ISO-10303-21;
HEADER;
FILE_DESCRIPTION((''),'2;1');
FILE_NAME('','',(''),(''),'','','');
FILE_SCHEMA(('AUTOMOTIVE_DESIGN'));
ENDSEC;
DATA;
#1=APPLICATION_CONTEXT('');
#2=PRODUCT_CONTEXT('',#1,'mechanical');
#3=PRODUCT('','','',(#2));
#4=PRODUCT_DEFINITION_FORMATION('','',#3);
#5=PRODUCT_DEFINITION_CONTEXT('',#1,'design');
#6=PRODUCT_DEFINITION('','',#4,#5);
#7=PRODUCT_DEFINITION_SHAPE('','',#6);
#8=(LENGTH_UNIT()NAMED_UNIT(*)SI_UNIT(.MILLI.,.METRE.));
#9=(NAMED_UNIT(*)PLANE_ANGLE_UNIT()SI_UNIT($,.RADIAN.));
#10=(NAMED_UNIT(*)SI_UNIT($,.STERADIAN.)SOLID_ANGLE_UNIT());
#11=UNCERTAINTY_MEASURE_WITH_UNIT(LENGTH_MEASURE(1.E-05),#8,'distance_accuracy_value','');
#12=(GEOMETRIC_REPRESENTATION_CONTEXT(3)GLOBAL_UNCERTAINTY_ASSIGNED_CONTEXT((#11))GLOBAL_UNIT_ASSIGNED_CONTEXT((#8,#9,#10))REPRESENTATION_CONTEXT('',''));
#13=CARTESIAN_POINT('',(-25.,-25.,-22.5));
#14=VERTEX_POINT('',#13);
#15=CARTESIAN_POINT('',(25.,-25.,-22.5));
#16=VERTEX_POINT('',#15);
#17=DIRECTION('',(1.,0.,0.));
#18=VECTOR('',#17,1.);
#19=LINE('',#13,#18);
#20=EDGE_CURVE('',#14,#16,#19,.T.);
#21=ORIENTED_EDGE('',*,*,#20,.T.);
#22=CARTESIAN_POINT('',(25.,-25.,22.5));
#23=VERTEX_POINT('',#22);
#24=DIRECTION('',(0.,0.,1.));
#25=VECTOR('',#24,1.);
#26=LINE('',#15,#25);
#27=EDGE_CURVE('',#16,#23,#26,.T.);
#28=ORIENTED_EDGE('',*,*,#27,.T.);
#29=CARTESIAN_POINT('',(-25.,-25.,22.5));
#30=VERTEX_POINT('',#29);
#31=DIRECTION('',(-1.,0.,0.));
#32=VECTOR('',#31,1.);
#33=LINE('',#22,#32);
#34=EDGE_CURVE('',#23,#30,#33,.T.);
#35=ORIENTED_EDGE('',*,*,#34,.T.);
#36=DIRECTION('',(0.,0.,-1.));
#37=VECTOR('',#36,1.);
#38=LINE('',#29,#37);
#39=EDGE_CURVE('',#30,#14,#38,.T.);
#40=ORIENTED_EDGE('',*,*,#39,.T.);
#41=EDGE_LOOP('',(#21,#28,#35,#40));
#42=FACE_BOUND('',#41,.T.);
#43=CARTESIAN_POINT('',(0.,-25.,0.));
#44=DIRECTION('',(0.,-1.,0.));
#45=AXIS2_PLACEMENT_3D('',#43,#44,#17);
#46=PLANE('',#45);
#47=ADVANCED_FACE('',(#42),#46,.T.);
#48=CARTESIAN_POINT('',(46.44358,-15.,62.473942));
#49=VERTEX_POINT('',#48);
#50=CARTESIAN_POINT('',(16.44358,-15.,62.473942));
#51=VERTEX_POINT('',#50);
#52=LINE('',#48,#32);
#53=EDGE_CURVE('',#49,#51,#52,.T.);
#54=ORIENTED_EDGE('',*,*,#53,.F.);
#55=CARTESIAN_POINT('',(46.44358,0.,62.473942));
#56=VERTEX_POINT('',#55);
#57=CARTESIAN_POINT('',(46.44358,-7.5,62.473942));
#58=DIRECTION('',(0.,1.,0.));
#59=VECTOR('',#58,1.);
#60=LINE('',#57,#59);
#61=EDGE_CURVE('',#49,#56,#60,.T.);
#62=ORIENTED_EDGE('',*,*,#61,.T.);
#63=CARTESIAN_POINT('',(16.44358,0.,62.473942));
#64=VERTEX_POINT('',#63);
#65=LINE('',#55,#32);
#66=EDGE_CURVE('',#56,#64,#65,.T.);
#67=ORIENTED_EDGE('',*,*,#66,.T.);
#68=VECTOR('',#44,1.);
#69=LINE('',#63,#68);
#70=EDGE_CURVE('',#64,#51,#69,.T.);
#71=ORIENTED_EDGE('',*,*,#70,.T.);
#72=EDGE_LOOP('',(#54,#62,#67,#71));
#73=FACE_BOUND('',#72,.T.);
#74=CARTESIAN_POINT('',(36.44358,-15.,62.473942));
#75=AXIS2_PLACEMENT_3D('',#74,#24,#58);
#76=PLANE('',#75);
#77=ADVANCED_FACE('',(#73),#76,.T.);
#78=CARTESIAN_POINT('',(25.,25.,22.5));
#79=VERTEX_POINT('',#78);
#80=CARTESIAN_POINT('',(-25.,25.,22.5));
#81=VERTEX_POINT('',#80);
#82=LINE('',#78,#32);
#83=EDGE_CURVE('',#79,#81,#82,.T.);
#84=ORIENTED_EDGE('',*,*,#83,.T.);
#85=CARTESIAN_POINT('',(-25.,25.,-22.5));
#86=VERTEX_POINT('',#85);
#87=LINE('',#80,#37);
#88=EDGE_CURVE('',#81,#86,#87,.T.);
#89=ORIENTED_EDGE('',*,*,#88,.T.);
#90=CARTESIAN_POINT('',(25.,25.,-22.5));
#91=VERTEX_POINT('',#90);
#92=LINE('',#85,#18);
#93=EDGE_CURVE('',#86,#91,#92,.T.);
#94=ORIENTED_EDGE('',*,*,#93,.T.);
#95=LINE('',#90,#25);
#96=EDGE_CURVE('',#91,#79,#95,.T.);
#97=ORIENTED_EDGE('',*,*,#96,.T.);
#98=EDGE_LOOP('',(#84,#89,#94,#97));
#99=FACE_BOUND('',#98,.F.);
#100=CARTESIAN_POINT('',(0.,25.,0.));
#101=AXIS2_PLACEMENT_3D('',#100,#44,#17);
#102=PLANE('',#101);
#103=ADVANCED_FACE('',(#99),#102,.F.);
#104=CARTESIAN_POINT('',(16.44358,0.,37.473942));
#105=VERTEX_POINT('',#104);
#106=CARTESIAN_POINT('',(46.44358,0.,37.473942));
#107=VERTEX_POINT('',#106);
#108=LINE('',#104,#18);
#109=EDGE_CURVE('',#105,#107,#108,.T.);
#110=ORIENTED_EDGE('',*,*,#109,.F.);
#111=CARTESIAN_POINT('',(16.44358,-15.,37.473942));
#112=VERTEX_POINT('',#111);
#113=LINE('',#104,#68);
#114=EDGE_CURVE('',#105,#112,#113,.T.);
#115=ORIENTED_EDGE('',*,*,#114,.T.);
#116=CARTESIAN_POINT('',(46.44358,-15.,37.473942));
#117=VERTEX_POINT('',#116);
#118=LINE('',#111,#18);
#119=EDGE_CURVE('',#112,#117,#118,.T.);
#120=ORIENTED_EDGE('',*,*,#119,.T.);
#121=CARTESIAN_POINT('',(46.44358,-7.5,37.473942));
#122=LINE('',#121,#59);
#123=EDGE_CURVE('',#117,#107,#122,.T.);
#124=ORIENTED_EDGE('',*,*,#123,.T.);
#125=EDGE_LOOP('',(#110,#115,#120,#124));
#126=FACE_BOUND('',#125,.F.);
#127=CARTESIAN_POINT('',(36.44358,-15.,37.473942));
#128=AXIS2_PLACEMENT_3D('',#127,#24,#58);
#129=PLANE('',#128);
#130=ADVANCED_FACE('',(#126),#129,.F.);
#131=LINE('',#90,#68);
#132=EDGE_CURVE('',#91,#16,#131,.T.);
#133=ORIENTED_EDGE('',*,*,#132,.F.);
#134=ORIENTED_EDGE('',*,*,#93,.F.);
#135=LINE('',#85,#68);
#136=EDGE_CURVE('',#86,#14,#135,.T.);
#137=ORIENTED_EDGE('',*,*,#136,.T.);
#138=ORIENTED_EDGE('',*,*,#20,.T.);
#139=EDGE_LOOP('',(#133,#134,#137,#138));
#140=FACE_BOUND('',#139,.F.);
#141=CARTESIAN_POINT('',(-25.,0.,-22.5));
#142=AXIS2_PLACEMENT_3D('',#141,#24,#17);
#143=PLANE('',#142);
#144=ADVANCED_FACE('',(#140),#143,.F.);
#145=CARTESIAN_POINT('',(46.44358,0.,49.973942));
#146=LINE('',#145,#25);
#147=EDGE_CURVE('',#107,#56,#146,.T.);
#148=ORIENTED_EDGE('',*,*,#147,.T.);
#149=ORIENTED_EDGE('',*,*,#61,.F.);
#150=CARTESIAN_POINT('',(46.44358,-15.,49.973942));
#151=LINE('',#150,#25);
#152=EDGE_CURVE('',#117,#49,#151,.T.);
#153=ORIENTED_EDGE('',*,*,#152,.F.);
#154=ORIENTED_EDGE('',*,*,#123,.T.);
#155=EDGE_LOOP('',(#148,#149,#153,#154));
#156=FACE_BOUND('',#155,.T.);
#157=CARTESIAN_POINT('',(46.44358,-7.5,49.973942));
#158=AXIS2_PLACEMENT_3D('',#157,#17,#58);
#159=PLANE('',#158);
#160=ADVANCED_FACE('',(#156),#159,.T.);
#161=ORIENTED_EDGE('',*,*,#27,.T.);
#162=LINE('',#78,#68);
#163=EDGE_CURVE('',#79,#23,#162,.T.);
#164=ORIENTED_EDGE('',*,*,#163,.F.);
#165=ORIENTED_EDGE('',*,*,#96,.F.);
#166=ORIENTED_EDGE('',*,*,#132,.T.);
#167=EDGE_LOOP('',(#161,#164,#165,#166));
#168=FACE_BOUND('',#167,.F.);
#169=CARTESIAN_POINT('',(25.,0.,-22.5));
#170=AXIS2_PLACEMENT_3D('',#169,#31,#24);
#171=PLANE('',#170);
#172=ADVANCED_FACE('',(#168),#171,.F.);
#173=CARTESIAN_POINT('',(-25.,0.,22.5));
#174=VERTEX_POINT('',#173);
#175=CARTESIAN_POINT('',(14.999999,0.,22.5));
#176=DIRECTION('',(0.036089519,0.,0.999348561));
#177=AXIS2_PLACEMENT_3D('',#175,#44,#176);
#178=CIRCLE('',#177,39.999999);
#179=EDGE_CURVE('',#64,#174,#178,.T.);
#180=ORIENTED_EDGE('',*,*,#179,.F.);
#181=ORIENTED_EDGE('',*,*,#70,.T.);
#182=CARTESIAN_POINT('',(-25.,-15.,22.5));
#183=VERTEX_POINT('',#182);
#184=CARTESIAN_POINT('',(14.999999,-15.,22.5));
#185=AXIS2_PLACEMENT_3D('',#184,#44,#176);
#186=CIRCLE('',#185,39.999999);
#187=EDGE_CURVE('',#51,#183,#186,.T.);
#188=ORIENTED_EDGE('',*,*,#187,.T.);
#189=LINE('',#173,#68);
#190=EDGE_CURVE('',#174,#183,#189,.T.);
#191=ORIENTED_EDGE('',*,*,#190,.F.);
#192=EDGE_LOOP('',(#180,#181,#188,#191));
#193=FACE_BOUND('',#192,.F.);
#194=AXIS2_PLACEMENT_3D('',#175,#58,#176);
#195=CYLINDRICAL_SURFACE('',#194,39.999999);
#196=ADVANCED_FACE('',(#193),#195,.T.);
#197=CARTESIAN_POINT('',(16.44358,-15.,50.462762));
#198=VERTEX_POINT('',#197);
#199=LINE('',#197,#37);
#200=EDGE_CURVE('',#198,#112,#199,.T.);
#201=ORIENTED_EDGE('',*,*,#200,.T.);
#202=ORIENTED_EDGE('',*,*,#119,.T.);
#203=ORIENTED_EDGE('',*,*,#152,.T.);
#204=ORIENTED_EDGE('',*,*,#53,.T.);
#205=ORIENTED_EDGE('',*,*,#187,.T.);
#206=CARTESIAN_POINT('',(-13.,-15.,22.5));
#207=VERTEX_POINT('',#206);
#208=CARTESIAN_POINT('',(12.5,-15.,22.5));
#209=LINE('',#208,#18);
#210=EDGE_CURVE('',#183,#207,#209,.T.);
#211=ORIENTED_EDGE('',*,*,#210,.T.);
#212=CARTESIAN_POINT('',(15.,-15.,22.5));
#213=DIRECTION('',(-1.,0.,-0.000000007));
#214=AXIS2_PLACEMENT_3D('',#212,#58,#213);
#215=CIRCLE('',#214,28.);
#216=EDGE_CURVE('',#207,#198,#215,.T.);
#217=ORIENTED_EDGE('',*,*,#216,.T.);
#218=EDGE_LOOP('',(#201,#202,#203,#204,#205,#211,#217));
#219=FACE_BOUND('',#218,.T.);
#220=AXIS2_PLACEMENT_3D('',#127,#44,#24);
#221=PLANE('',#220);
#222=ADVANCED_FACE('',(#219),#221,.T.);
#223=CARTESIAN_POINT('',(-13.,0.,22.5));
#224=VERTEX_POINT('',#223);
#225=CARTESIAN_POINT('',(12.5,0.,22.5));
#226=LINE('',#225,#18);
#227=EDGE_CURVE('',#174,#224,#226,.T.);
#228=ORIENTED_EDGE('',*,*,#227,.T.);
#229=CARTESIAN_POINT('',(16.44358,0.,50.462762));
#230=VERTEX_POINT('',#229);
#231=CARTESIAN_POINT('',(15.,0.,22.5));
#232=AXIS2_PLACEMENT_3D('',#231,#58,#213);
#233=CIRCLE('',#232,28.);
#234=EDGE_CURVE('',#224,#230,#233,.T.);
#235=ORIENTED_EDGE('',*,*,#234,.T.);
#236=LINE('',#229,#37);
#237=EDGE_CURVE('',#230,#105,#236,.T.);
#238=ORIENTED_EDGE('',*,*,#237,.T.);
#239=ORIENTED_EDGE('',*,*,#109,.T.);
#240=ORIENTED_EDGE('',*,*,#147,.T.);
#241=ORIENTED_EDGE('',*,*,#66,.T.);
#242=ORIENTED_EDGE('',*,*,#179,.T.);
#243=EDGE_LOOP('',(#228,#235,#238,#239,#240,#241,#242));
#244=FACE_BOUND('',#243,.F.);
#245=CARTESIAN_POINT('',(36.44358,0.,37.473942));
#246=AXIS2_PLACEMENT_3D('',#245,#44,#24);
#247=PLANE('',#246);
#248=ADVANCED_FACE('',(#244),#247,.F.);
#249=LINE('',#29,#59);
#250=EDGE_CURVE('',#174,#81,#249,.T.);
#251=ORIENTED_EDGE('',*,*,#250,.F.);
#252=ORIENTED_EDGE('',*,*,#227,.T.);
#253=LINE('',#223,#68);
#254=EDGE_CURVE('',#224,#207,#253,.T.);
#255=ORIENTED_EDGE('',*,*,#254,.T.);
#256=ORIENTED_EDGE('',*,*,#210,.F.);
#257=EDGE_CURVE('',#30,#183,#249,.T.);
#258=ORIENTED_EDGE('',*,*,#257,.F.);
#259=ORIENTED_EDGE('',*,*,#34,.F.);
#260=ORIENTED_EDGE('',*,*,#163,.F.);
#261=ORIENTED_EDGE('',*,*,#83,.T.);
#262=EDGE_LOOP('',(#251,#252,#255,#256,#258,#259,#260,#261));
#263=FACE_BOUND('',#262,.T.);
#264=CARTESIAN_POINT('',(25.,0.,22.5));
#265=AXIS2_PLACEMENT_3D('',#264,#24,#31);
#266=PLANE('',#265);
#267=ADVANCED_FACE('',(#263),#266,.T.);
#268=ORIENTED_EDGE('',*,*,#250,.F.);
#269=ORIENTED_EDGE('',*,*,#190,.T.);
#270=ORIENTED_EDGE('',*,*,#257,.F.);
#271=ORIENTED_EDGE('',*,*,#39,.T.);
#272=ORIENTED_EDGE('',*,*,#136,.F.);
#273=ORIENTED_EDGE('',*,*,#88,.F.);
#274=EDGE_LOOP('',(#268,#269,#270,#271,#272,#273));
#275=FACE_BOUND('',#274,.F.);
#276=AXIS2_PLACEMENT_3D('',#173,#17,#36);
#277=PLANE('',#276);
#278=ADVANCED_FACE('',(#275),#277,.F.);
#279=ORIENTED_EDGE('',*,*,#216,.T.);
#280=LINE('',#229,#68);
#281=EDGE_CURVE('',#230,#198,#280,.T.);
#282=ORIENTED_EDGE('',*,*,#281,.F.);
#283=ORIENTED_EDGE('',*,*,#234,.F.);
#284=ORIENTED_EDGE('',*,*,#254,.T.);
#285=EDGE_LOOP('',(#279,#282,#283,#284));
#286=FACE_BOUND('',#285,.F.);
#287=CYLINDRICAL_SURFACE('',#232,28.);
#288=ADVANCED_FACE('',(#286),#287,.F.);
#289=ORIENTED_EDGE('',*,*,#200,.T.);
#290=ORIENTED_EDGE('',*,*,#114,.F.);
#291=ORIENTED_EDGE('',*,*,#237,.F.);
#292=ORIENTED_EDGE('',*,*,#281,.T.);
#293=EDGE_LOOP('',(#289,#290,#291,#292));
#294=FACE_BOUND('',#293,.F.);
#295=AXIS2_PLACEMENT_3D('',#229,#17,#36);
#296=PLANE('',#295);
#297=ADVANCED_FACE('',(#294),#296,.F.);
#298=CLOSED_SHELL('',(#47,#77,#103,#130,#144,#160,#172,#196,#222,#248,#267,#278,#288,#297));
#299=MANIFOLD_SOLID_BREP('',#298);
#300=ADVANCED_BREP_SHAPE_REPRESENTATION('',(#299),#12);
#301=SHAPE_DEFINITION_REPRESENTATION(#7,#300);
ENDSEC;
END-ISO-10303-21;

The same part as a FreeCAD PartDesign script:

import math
import FreeCAD as App
import Part
import Sketcher
from FreeCAD import Vector
Q = App.Units.Quantity


def add_polygon(sketch, points):
    """Adds a closed chain of lines whose ends are joined by coincident constraints."""
    first, n = sketch.GeometryCount, len(points)
    for a, b in zip(points, points[1:] + points[:1]):
        sketch.addGeometry(Part.LineSegment(App.Vector(*a, 0), App.Vector(*b, 0)), False)
    for i in range(n):
        sketch.addConstraint(Sketcher.Constraint("Coincident", first + i, 2, first + (i + 1) % n, 1))

doc = App.newDocument("Part")
params = doc.addObject("Spreadsheet::Sheet", "Params")
for row, (alias, value) in enumerate([
    ("sketch1_width", "50 mm"),
    ("sketch1_height", "45 mm"),
    ("pad1_length", "50 mm"),
    ("sketch2_radius", "28 mm"),
    ("sketch2_radius2", "39.999999 mm"),
    ("sketch2_width", "50 mm"),
    ("sketch2_width2", "20 mm"),
    ("sketch2_height", "45 mm"),
    ("pad2_length", "15 mm"),
    ("sketch3_width", "15 mm"),
    ("sketch3_height", "25 mm"),
    ("pad3_length", "10 mm"),
], start=1):
    params.set(f"A{row}", alias)
    params.set(f"B{row}", "=" + value)
    params.setAlias(f"B{row}", alias)

body = doc.addObject("PartDesign::Body", "Body")

sketch1 = body.newObject("Sketcher::SketchObject", "Sketch")
sketch1.AttachmentSupport = (doc.getObject("XZ_Plane"), [""])
sketch1.MapMode = "FlatFace"
add_polygon(sketch1, [(-25, 22.5), (-25, -22.5), (25, -22.5), (25, 22.5)])
sketch1.addConstraint([
    Sketcher.Constraint("Vertical", 0),
    Sketcher.Constraint("Horizontal", 1),
    Sketcher.Constraint("Vertical", 2),
    Sketcher.Constraint("Horizontal", 3),
    Sketcher.Constraint("Symmetric", 0, 2, 2, 2, -1, 1),
    Sketcher.Constraint("DistanceX", 1, 1, 1, 2, Q("50 mm")),
    Sketcher.Constraint("DistanceY", 0, 2, 0, 1, Q("45 mm")),
])
sketch1.setExpression("Constraints[9]", "Params.sketch1_width")
sketch1.setExpression("Constraints[10]", "Params.sketch1_height")
pad1 = body.newObject("PartDesign::Pad", "Pad")
pad1.Profile = sketch1
pad1.setExpression("Length", "Params.pad1_length")
pad1.Midplane = True

sketch2 = body.newObject("Sketcher::SketchObject", "Sketch001")
sketch2.AttachmentSupport = (doc.getObject("XZ_Plane"), [""])
sketch2.MapMode = "FlatFace"
sketch2.addGeometry([
    Part.LineSegment(Vector(-25, 22.5, 0), Vector(-25, -22.5, 0)),
    Part.LineSegment(Vector(-25, -22.5, 0), Vector(25, -22.5, 0)),
    Part.LineSegment(Vector(25, -22.5, 0), Vector(25, 22.5, 0)),
    Part.LineSegment(Vector(25, 22.5, 0), Vector(-13, 22.5, 0)),
    Part.ArcOfCircle(Part.Circle(Vector(15, 22.5, 0), Vector(0, 0, 1), 28), math.radians(87.044723), math.radians(180)),
    Part.LineSegment(Vector(16.44358, 50.462762, 0), Vector(16.44358, 37.473942, 0)),
    Part.LineSegment(Vector(16.44358, 37.473942, 0), Vector(36.44358, 37.473942, 0)),
    Part.LineSegment(Vector(36.44358, 37.473942, 0), Vector(36.44358, 62.473942, 0)),
    Part.LineSegment(Vector(36.44358, 62.473942, 0), Vector(16.44358, 62.473942, 0)),
    Part.ArcOfCircle(Part.Circle(Vector(14.999999, 22.5, 0), Vector(0, 0, 1), 39.999999), math.radians(87.931774), math.radians(180)),
], False)
sketch2.addConstraint([
    Sketcher.Constraint("Coincident", 0, 2, 1, 1),
    Sketcher.Constraint("Coincident", 1, 2, 2, 1),
    Sketcher.Constraint("Coincident", 2, 2, 3, 1),
    Sketcher.Constraint("Coincident", 3, 2, 4, 2),
    Sketcher.Constraint("Coincident", 4, 1, 5, 1),
    Sketcher.Constraint("Coincident", 5, 2, 6, 1),
    Sketcher.Constraint("Coincident", 6, 2, 7, 1),
    Sketcher.Constraint("Coincident", 7, 2, 8, 1),
    Sketcher.Constraint("Coincident", 8, 2, 9, 1),
    Sketcher.Constraint("Tangent", 9, 2, 0, 1),
    Sketcher.Constraint("Vertical", 0),
    Sketcher.Constraint("Horizontal", 1),
    Sketcher.Constraint("Vertical", 2),
    Sketcher.Constraint("Horizontal", 3),
    Sketcher.Constraint("Vertical", 5),
    Sketcher.Constraint("Horizontal", 6),
    Sketcher.Constraint("Vertical", 7),
    Sketcher.Constraint("Horizontal", 8),
    Sketcher.Constraint("Coincident", 9, 3, 4, 3),
    Sketcher.Constraint("Symmetric", 0, 2, 2, 2, -1, 1),
    Sketcher.Constraint("Horizontal", 9, 3, 2, 2),
    Sketcher.Constraint("Vertical", 5, 2, 8, 2),
    Sketcher.Constraint("Radius", 4, Q("28 mm")),
    Sketcher.Constraint("Radius", 9, Q("39.999999 mm")),
    Sketcher.Constraint("DistanceX", 1, 1, 1, 2, Q("50 mm")),
    Sketcher.Constraint("DistanceX", 6, 1, 6, 2, Q("20 mm")),
    Sketcher.Constraint("DistanceY", 0, 2, 0, 1, Q("45 mm")),
    Sketcher.Constraint("DistanceY", 7, 1, 7, 2, Q("25 mm")),
    Sketcher.Constraint("DistanceY", 5, 2, 5, 1, Q("12.98882 mm")),
])
sketch2.setExpression("Constraints[22]", "Params.sketch2_radius")
sketch2.setExpression("Constraints[23]", "Params.sketch2_radius2")
sketch2.setExpression("Constraints[24]", "Params.sketch2_width")
sketch2.setExpression("Constraints[25]", "Params.sketch2_width2")
sketch2.setExpression("Constraints[26]", "Params.sketch2_height")
pad2 = body.newObject("PartDesign::Pad", "Pad001")
pad2.Profile = sketch2
pad2.setExpression("Length", "Params.pad2_length")

sketch3 = body.newObject("Sketcher::SketchObject", "Sketch002")
sketch3.AttachmentSupport = (doc.getObject("YZ_Plane"), [""])
sketch3.MapMode = "FlatFace"
sketch3.AttachmentOffset = App.Placement(Vector(0, 0, 36.44358), App.Rotation())
add_polygon(sketch3, [(-15, 62.473942), (-15, 37.473942), (0, 37.473942), (0, 62.473942)])
sketch3.addConstraint([
    Sketcher.Constraint("Vertical", 0),
    Sketcher.Constraint("Horizontal", 1),
    Sketcher.Constraint("Vertical", 2),
    Sketcher.Constraint("Horizontal", 3),
    Sketcher.Constraint("PointOnObject", 1, 2, -2),
    Sketcher.Constraint("DistanceX", 1, 1, 1, 2, Q("15 mm")),
    Sketcher.Constraint("DistanceY", 0, 2, 0, 1, Q("25 mm")),
    Sketcher.Constraint("DistanceY", -1, 1, 0, 2, Q("37.473942 mm")),
])
sketch3.setExpression("Constraints[9]", "Params.sketch3_width")
sketch3.setExpression("Constraints[10]", "Params.sketch3_height")
pad3 = body.newObject("PartDesign::Pad", "Pad002")
pad3.Profile = sketch3
pad3.setExpression("Length", "Params.pad3_length")

doc.recompute()
